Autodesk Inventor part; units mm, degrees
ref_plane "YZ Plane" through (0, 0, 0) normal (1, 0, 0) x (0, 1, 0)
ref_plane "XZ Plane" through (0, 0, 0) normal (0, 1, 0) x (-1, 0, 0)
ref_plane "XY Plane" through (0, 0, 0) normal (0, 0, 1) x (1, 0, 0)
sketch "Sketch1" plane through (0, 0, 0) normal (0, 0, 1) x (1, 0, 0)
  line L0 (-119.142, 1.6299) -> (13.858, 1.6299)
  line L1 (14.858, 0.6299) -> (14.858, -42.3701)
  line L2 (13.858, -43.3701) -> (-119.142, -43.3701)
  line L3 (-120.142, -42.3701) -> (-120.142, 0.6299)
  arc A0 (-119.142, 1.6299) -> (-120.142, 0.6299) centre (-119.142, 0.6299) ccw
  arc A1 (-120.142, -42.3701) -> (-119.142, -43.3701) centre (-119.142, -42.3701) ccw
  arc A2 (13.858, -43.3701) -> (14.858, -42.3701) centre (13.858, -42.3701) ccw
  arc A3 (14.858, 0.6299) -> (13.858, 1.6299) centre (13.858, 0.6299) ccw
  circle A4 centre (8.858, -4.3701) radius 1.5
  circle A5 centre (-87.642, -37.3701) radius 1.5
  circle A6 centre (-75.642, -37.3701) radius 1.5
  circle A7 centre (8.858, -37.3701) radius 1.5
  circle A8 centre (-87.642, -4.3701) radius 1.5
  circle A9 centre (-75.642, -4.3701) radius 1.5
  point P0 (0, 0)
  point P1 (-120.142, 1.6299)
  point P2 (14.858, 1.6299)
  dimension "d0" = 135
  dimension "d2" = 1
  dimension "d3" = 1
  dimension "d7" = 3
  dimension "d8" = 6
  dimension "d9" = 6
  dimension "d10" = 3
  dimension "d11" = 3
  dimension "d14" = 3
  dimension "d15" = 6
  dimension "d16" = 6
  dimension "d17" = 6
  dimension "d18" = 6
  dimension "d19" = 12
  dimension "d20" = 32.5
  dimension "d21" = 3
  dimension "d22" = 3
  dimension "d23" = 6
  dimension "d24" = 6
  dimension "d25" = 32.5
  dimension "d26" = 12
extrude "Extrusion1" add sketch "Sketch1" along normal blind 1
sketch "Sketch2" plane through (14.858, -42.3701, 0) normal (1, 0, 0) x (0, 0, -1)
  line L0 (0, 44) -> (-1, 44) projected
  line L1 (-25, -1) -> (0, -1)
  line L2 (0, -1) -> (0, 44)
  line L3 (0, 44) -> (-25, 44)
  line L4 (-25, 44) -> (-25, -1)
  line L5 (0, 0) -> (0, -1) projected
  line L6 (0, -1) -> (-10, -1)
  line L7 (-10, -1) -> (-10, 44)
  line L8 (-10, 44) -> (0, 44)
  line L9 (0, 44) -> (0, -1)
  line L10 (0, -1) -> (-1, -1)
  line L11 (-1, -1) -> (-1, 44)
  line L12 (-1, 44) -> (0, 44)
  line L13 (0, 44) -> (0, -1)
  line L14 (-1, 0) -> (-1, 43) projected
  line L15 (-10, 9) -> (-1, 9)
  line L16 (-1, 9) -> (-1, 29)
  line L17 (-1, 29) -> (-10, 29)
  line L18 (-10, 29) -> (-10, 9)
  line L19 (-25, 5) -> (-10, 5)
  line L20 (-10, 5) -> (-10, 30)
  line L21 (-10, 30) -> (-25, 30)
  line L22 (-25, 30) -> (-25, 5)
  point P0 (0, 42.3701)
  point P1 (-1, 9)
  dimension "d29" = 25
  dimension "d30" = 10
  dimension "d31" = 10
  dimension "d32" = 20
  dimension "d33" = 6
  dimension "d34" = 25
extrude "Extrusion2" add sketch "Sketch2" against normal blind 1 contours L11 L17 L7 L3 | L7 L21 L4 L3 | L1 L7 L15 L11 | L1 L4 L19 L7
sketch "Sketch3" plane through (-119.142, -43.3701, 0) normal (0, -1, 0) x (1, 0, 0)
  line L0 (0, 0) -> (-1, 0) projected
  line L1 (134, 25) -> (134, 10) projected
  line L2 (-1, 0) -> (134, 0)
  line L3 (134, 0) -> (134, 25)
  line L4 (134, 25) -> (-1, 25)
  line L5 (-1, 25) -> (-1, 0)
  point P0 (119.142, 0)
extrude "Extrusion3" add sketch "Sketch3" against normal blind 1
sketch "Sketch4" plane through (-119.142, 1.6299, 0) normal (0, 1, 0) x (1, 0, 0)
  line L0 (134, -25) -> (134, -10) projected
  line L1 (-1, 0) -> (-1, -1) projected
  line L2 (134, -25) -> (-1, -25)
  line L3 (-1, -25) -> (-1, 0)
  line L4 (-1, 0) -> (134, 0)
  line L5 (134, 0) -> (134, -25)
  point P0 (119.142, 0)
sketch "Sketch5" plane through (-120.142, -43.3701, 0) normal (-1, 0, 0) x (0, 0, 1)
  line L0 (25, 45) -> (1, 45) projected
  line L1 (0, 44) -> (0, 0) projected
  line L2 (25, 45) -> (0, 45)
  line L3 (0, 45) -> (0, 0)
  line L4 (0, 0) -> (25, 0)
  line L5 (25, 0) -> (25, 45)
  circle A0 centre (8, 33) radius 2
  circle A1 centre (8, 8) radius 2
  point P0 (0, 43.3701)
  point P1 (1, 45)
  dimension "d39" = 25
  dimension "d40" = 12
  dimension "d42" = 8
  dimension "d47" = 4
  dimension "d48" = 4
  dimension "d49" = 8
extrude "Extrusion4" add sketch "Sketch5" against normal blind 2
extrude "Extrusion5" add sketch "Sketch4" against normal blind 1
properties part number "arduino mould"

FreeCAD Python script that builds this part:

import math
import FreeCAD as App
import Part
import Sketcher

V = App.Vector
Q = App.Units.Quantity


def add_polygon(sketch, points):
    """Adds a closed chain of lines whose ends are joined by coincident constraints."""
    first, n = sketch.GeometryCount, len(points)
    for a, b in zip(points, points[1:] + points[:1]):
        sketch.addGeometry(Part.LineSegment(App.Vector(*a, 0), App.Vector(*b, 0)), False)
    for i in range(n):
        sketch.addConstraint(Sketcher.Constraint("Coincident", first + i, 2, first + (i + 1) % n, 1))

doc = App.newDocument("Part")
body = doc.addObject("PartDesign::Body", "Body")

# Sketch on XY plane
sketch1 = body.newObject("Sketcher::SketchObject", "Sketch")
sketch1.AttachmentSupport = (doc.getObject("XY_Plane"), [""])
sketch1.MapMode = "FlatFace"
sketch1.addGeometry([
    Part.LineSegment(V(13.9, 1.6, 0), V(-119.1, 1.6, 0)),  # 0
    Part.ArcOfCircle(Part.Circle(V(-119.1, 0.6, 0), V(0, 0, 1), 1), math.radians(90), math.radians(180)),  # 1
    Part.LineSegment(V(-120.1, 0.6, 0), V(-120.1, -42.4, 0)),  # 2
    Part.ArcOfCircle(Part.Circle(V(-119.1, -42.4, 0), V(0, 0, 1), 1), math.radians(180), math.radians(270)),  # 3
    Part.LineSegment(V(-119.1, -43.4, 0), V(13.9, -43.4, 0)),  # 4
    Part.ArcOfCircle(Part.Circle(V(13.9, -42.4, 0), V(0, 0, 1), 1), math.radians(-90), math.radians(0)),  # 5
    Part.LineSegment(V(14.9, -42.4, 0), V(14.9, 0.6, 0)),  # 6
    Part.ArcOfCircle(Part.Circle(V(13.9, 0.6, 0), V(0, 0, 1), 1), math.radians(0), math.radians(90)),  # 7
    Part.Circle(V(-87.6, -37.4, 0), V(0, 0, 1), 1.5),  # 8
    Part.Circle(V(-75.6, -37.4, 0), V(0, 0, 1), 1.5),  # 9
    Part.Circle(V(8.9, -37.4, 0), V(0, 0, 1), 1.5),  # 10
    Part.Circle(V(-87.6, -4.4, 0), V(0, 0, 1), 1.5),  # 11
    Part.Circle(V(-75.6, -4.4, 0), V(0, 0, 1), 1.5),  # 12
    Part.Circle(V(8.9, -4.4, 0), V(0, 0, 1), 1.5),  # 13
], False)
sketch1.addConstraint([
    Sketcher.Constraint("Tangent", 0, 2, 1, 1),
    Sketcher.Constraint("Tangent", 1, 2, 2, 1),
    Sketcher.Constraint("Tangent", 2, 2, 3, 1),
    Sketcher.Constraint("Tangent", 3, 2, 4, 1),
    Sketcher.Constraint("Tangent", 4, 2, 5, 1),
    Sketcher.Constraint("Tangent", 5, 2, 6, 1),
    Sketcher.Constraint("Tangent", 6, 2, 7, 1),
    Sketcher.Constraint("Tangent", 7, 2, 0, 1),
    Sketcher.Constraint("Horizontal", 0),
    Sketcher.Constraint("Vertical", 2),
    Sketcher.Constraint("Horizontal", 4),
    Sketcher.Constraint("Vertical", 6),
    Sketcher.Constraint("Equal", 1, 3),
    Sketcher.Constraint("Equal", 3, 5),
    Sketcher.Constraint("Equal", 5, 7),
    Sketcher.Constraint("Equal", 8, 9),
    Sketcher.Constraint("Equal", 9, 10),
    Sketcher.Constraint("Equal", 10, 11),
    Sketcher.Constraint("Equal", 11, 12),
    Sketcher.Constraint("Equal", 12, 13),
    Sketcher.Constraint("Horizontal", 8, 3, 9, 3),
    Sketcher.Constraint("Horizontal", 9, 3, 10, 3),
    Sketcher.Constraint("Horizontal", 11, 3, 12, 3),
    Sketcher.Constraint("Horizontal", 12, 3, 13, 3),
    Sketcher.Constraint("Vertical", 8, 3, 11, 3),
    Sketcher.Constraint("Vertical", 9, 3, 12, 3),
    Sketcher.Constraint("Vertical", 10, 3, 13, 3),
    Sketcher.Constraint("Diameter", 8, Q("3 mm")),
    Sketcher.Constraint("Radius", 1, Q("1 mm")),
    Sketcher.Constraint("DistanceX", 8, 3, 9, 3, Q("12 mm")),
    Sketcher.Constraint("DistanceY", 11, 3, 0, 2, Q("6 mm")),
    Sketcher.Constraint("DistanceY", 3, 2, 8, 3, Q("6 mm")),
    Sketcher.Constraint("DistanceX", 10, 3, 5, 2, Q("6 mm")),
    Sketcher.Constraint("DistanceX", 1, 2, 11, 3, Q("32.5 mm")),
    Sketcher.Constraint("DistanceX", 0, 2, 0, 1, Q("133 mm")),
    Sketcher.Constraint("DistanceY", 2, 2, 2, 1, Q("43 mm")),
    Sketcher.Constraint("DistanceY", -1, 1, 1, 3, Q("0.63 mm")),
    Sketcher.Constraint("DistanceX", 1, 3, -1, 1, Q("119.142 mm")),
])
pad1 = body.newObject("PartDesign::Pad", "Pad")
pad1.Profile = sketch1
pad1.Length = 1

# Sketch on YZ plane
sketch2 = body.newObject("Sketcher::SketchObject", "Sketch001")
sketch2.AttachmentSupport = (doc.getObject("YZ_Plane"), [""])
sketch2.MapMode = "FlatFace"
sketch2.AttachmentOffset = App.Placement(V(0, 0, 14.858), App.Rotation())
add_polygon(sketch2, [(1.6, 1), (1.6, 25), (-12.4, 25), (-12.4, 10), (-13.4, 10), (-13.4, 1)])  # lines 0-5
add_polygon(sketch2, [(-43.4, 1), (-33.4, 1), (-33.4, 10), (-37.4, 10), (-37.4, 25), (-43.4, 25)])  # lines 6-11
sketch2.addConstraint([
    Sketcher.Constraint("Vertical", 0),
    Sketcher.Constraint("Horizontal", 1),
    Sketcher.Constraint("Vertical", 2),
    Sketcher.Constraint("Horizontal", 3),
    Sketcher.Constraint("Vertical", 4),
    Sketcher.Constraint("Horizontal", 5),
    Sketcher.Constraint("Horizontal", 6),
    Sketcher.Constraint("Vertical", 7),
    Sketcher.Constraint("Horizontal", 8),
    Sketcher.Constraint("Vertical", 9),
    Sketcher.Constraint("Horizontal", 10),
    Sketcher.Constraint("Vertical", 11),
    Sketcher.Constraint("Horizontal", 5, 2, 6, 2),
    Sketcher.Constraint("Horizontal", 3, 2, 7, 2),
    Sketcher.Constraint("Horizontal", 1, 2, 9, 2),
    Sketcher.Constraint("Equal", 5, 2),
    Sketcher.Constraint("DistanceX", 6, 1, 6, 2, Q("10 mm")),
    Sketcher.Constraint("DistanceX", 10, 2, 10, 1, Q("6 mm")),
    Sketcher.Constraint("DistanceY", -1, 1, 0, 2, Q("25 mm")),
    Sketcher.Constraint("DistanceY", -1, 1, 2, 2, Q("10 mm")),
    Sketcher.Constraint("DistanceX", 6, 2, 4, 2, Q("20 mm")),
    Sketcher.Constraint("DistanceX", 8, 2, 2, 2, Q("25 mm")),
    Sketcher.Constraint("DistanceY", 0, 1, 0, 2, Q("24 mm")),
    Sketcher.Constraint("DistanceX", -1, 1, 0, 2, Q("1.63 mm")),
])
pad2 = body.newObject("PartDesign::Pad", "Pad001")
pad2.Profile = sketch2
pad2.Length = 1
pad2.Reversed = True

# Sketch on XZ plane
sketch3 = body.newObject("Sketcher::SketchObject", "Sketch002")
sketch3.AttachmentSupport = (doc.getObject("XZ_Plane"), [""])
sketch3.MapMode = "FlatFace"
sketch3.AttachmentOffset = App.Placement(V(0, 0, 43.3701), App.Rotation())
add_polygon(sketch3, [(-120, 0), (15, 0), (15, 25), (-120, 25)])  # lines 0-3
sketch3.addConstraint([
    Sketcher.Constraint("Horizontal", 0),
    Sketcher.Constraint("Vertical", 1),
    Sketcher.Constraint("Horizontal", 2),
    Sketcher.Constraint("Vertical", 3),
    Sketcher.Constraint("PointOnObject", 0, 2, -1),
    Sketcher.Constraint("DistanceX", 0, 1, 0, 2, Q("135 mm")),
    Sketcher.Constraint("DistanceY", 1, 1, 1, 2, Q("25 mm")),
    Sketcher.Constraint("DistanceX", -1, 1, 0, 2, Q("14.858 mm")),
])
pad3 = body.newObject("PartDesign::Pad", "Pad002")
pad3.Profile = sketch3
pad3.Length = 1
pad3.Reversed = True

# Sketch on YZ plane
sketch4 = body.newObject("Sketcher::SketchObject", "Sketch003")
sketch4.AttachmentSupport = (doc.getObject("YZ_Plane"), [""])
sketch4.MapMode = "FlatFace"
sketch4.AttachmentOffset = App.Placement(V(0, 0, -120.142), App.Rotation())
add_polygon(sketch4, [(-43.4, 25), (1.6, 25), (1.6, 0), (-43.4, 0)])  # lines 0-3
sketch4.addGeometry(Part.Circle(V(-35.4, 8, 0), V(0, 0, 1), 2), False)  # 4
sketch4.addGeometry(Part.Circle(V(-10.4, 8, 0), V(0, 0, 1), 2), False)  # 5
sketch4.addConstraint([
    Sketcher.Constraint("Horizontal", 0),
    Sketcher.Constraint("Vertical", 1),
    Sketcher.Constraint("Horizontal", 2),
    Sketcher.Constraint("Vertical", 3),
    Sketcher.Constraint("Equal", 4, 5),
    Sketcher.Constraint("PointOnObject", 1, 2, -1),
    Sketcher.Constraint("Horizontal", 4, 3, 5, 3),
    Sketcher.Constraint("Diameter", 4, Q("4 mm")),
    Sketcher.Constraint("DistanceY", 1, 2, 1, 1, Q("25 mm")),
    Sketcher.Constraint("DistanceY", -1, 1, 4, 3, Q("8 mm")),
    Sketcher.Constraint("DistanceX", 4, 3, 5, 3, Q("25 mm")),
    Sketcher.Constraint("DistanceX", 5, 3, 0, 2, Q("12 mm")),
    Sketcher.Constraint("DistanceX", 2, 2, 4, 3, Q("8 mm")),
    Sketcher.Constraint("DistanceX", 4, 3, -1, 1, Q("35.37 mm")),
])
pad4 = body.newObject("PartDesign::Pad", "Pad003")
pad4.Profile = sketch4
pad4.Length = 2

# Sketch on XZ plane
sketch5 = body.newObject("Sketcher::SketchObject", "Sketch004")
sketch5.AttachmentSupport = (doc.getObject("XZ_Plane"), [""])
sketch5.MapMode = "FlatFace"
sketch5.AttachmentOffset = App.Placement(V(0, 0, -1.6299), App.Rotation())
add_polygon(sketch5, [(-120, 25), (15, 25), (15, 0), (-120, 0)])  # lines 0-3
sketch5.addConstraint([
    Sketcher.Constraint("Horizontal", 0),
    Sketcher.Constraint("Vertical", 1),
    Sketcher.Constraint("Horizontal", 2),
    Sketcher.Constraint("Vertical", 3),
    Sketcher.Constraint("PointOnObject", 1, 2, -1),
    Sketcher.Constraint("DistanceX", 0, 1, 0, 2, Q("135 mm")),
    Sketcher.Constraint("DistanceY", 1, 2, 1, 1, Q("25 mm")),
    Sketcher.Constraint("DistanceX", -1, 1, 0, 2, Q("14.858 mm")),
])
pad5 = body.newObject("PartDesign::Pad", "Pad004")
pad5.Profile = sketch5
pad5.Length = 1

doc.recompute()
